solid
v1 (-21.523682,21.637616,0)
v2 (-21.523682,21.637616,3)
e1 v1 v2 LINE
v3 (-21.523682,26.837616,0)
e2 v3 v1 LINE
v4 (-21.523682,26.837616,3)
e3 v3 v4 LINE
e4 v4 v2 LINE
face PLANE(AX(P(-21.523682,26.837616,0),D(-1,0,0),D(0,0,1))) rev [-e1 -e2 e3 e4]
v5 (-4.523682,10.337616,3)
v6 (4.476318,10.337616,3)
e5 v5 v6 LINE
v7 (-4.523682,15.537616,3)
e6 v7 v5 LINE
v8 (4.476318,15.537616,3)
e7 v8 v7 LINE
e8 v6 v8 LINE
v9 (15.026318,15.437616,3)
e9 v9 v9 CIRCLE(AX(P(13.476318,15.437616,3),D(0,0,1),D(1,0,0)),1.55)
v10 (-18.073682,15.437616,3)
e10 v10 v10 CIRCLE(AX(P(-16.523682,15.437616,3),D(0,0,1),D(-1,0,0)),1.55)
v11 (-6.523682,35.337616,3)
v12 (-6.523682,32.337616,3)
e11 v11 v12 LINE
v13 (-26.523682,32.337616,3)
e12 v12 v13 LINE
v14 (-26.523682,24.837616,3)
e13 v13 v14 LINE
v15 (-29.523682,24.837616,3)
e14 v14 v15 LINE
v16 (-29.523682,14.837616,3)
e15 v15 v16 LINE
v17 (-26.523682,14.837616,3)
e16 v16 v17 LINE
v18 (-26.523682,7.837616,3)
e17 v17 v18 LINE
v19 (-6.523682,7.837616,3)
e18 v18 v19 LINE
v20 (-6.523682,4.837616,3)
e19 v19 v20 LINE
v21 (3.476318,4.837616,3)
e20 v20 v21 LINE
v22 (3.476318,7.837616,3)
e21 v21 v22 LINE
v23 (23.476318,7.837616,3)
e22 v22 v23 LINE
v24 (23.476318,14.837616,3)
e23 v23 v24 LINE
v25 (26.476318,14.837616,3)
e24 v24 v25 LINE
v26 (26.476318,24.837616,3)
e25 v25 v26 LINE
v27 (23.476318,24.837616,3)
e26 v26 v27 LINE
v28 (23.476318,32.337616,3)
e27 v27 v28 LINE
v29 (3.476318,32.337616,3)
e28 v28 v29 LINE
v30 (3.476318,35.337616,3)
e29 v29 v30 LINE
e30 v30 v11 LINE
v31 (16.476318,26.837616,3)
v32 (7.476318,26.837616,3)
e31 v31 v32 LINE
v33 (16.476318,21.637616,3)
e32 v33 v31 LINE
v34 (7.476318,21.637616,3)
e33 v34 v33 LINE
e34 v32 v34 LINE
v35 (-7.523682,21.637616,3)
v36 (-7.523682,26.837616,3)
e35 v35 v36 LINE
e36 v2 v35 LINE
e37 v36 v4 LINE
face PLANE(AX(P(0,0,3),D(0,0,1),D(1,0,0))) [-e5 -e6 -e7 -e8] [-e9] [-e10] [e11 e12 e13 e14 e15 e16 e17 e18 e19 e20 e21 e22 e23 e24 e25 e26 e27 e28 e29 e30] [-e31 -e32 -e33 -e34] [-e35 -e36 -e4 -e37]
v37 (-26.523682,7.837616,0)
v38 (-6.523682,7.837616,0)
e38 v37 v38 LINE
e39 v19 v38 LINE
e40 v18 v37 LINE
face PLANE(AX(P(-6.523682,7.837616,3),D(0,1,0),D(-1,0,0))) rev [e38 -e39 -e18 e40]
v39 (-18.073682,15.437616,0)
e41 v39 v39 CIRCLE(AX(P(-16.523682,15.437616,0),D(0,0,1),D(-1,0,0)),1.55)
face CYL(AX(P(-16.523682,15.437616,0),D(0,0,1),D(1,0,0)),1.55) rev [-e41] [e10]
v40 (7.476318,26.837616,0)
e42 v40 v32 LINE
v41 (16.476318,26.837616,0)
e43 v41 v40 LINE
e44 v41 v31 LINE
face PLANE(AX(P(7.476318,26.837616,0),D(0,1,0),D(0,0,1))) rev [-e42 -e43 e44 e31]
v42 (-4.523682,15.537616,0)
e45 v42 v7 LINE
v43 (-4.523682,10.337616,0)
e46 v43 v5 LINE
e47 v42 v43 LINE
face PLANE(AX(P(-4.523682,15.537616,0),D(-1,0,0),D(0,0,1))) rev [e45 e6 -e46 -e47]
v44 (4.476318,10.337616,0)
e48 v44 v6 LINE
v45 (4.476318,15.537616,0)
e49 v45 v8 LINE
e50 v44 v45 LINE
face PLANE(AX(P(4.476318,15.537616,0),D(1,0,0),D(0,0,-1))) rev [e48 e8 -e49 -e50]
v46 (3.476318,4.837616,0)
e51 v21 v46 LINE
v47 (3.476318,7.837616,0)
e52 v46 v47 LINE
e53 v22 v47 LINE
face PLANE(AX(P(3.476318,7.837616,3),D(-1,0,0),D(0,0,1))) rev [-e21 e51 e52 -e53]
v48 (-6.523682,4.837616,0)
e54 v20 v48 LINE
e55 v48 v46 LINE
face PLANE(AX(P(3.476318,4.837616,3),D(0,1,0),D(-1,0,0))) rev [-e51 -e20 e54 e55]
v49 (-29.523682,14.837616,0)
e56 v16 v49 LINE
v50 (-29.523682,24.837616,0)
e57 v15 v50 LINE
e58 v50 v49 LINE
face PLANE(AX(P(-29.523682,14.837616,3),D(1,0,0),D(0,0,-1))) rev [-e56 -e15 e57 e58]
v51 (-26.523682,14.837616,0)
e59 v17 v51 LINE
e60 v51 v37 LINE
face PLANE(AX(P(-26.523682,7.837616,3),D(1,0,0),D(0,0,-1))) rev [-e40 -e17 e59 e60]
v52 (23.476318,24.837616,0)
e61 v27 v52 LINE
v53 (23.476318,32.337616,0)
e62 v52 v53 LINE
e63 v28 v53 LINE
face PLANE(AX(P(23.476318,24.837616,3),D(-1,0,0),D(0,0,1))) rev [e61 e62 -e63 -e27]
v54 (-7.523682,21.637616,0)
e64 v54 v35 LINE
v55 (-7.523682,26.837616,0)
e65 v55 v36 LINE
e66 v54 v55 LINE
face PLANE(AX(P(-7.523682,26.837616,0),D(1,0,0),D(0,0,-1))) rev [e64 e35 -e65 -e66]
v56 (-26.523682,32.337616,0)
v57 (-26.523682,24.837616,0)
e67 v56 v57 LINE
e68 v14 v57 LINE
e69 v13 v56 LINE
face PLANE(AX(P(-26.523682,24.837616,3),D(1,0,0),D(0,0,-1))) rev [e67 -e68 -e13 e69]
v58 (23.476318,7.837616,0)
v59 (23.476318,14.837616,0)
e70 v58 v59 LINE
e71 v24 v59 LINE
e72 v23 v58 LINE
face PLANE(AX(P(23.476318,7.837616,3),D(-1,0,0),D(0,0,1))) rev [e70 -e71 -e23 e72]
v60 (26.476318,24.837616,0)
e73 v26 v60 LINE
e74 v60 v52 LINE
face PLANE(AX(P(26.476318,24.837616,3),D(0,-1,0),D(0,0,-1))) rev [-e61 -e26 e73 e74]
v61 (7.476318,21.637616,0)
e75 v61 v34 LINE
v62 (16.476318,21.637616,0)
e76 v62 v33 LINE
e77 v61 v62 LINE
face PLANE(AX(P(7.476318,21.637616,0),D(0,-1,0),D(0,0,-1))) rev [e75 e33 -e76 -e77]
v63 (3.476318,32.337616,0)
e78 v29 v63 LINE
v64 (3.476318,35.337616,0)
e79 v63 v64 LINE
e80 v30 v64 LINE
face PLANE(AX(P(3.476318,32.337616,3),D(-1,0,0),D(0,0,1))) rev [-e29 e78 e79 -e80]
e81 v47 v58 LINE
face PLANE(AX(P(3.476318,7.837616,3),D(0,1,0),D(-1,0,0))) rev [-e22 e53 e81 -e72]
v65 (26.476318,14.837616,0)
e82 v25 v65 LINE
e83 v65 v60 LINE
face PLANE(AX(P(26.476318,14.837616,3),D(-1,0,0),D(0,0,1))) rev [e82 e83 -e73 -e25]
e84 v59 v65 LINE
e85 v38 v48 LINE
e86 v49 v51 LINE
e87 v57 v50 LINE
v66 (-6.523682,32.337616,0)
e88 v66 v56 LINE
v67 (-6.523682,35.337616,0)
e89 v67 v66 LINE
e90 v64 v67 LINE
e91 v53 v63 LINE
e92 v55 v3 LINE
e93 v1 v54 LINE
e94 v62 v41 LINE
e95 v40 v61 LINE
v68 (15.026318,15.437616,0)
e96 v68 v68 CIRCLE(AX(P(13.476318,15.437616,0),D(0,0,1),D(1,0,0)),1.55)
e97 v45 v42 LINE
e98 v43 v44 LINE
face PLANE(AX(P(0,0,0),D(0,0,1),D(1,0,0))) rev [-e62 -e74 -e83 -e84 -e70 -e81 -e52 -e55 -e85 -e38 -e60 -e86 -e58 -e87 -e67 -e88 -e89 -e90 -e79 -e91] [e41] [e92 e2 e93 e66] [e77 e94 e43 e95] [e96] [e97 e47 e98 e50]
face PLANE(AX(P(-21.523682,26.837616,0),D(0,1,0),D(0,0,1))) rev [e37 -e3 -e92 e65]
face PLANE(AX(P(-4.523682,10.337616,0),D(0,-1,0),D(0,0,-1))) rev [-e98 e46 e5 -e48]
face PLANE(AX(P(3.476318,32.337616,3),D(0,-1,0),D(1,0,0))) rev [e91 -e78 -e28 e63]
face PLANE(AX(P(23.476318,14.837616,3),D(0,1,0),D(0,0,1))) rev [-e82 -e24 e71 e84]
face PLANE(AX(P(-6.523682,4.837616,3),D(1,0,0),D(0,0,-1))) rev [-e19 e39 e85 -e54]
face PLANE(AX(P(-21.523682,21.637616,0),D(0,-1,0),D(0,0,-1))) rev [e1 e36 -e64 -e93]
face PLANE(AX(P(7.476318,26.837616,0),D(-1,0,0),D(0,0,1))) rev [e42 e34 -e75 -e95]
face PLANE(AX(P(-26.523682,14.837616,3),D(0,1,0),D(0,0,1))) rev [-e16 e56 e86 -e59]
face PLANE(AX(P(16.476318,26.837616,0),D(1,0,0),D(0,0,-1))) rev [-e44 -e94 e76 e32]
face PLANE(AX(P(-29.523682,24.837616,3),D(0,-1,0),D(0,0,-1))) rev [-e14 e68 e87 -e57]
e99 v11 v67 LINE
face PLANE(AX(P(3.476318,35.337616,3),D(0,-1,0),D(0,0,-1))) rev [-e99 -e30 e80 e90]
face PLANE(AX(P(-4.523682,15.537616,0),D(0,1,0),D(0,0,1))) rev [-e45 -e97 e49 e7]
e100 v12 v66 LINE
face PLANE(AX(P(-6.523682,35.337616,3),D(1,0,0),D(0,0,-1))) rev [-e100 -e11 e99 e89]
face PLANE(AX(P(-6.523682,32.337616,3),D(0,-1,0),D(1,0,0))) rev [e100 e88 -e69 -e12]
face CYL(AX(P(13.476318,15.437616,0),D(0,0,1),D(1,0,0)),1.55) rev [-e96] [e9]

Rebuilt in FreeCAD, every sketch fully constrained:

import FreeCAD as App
import Part
import Sketcher
from FreeCAD import Vector
Q = App.Units.Quantity

doc = App.newDocument("Part")
params = doc.addObject("Spreadsheet::Sheet", "Params")
for row, (alias, value) in enumerate([
    ("sketch1_width", "20 mm"),
    ("sketch1_width2", "3 mm"),
    ("sketch1_width3", "10 mm"),
    ("sketch1_height", "7 mm"),
    ("sketch1_height2", "7.5 mm"),
    ("pad1_length", "3 mm"),
    ("sketch2_diameter", "3.1 mm"),
    ("sketch2_width", "9 mm"),
    ("sketch2_width2", "14 mm"),
    ("sketch2_height", "5.2 mm"),
    ("pocket1_length", "3 mm"),
], start=1):
    params.set(f"A{row}", alias)
    params.set(f"B{row}", "=" + value)
    params.setAlias(f"B{row}", alias)

body = doc.addObject("PartDesign::Body", "Body")

sketch1 = body.newObject("Sketcher::SketchObject", "Sketch")
sketch1.AttachmentSupport = (doc.getObject("XY_Plane"), [""])
sketch1.MapMode = "FlatFace"
sketch1.addGeometry(Part.LineSegment(Vector(3.476318, 4.837616, 0), Vector(3.476318, 7.837616, 0)), False)
sketch1.addGeometry(Part.LineSegment(Vector(3.476318, 7.837616, 0), Vector(23.476318, 7.837616, 0)), False)
sketch1.addGeometry(Part.LineSegment(Vector(23.476318, 7.837616, 0), Vector(23.476318, 14.837616, 0)), False)
sketch1.addGeometry(Part.LineSegment(Vector(23.476318, 14.837616, 0), Vector(26.476318, 14.837616, 0)), False)
sketch1.addGeometry(Part.LineSegment(Vector(26.476318, 14.837616, 0), Vector(26.476318, 24.837616, 0)), False)
sketch1.addGeometry(Part.LineSegment(Vector(26.476318, 24.837616, 0), Vector(23.476318, 24.837616, 0)), False)
sketch1.addGeometry(Part.LineSegment(Vector(23.476318, 24.837616, 0), Vector(23.476318, 32.337616, 0)), False)
sketch1.addGeometry(Part.LineSegment(Vector(23.476318, 32.337616, 0), Vector(3.476318, 32.337616, 0)), False)
sketch1.addGeometry(Part.LineSegment(Vector(3.476318, 32.337616, 0), Vector(3.476318, 35.337616, 0)), False)
sketch1.addGeometry(Part.LineSegment(Vector(3.476318, 35.337616, 0), Vector(-6.523682, 35.337616, 0)), False)
sketch1.addGeometry(Part.LineSegment(Vector(-6.523682, 35.337616, 0), Vector(-6.523682, 32.337616, 0)), False)
sketch1.addGeometry(Part.LineSegment(Vector(-6.523682, 32.337616, 0), Vector(-26.523682, 32.337616, 0)), False)
sketch1.addGeometry(Part.LineSegment(Vector(-26.523682, 32.337616, 0), Vector(-26.523682, 24.837616, 0)), False)
sketch1.addGeometry(Part.LineSegment(Vector(-26.523682, 24.837616, 0), Vector(-29.523682, 24.837616, 0)), False)
sketch1.addGeometry(Part.LineSegment(Vector(-29.523682, 24.837616, 0), Vector(-29.523682, 14.837616, 0)), False)
sketch1.addGeometry(Part.LineSegment(Vector(-29.523682, 14.837616, 0), Vector(-26.523682, 14.837616, 0)), False)
sketch1.addGeometry(Part.LineSegment(Vector(-26.523682, 14.837616, 0), Vector(-26.523682, 7.837616, 0)), False)
sketch1.addGeometry(Part.LineSegment(Vector(-26.523682, 7.837616, 0), Vector(-6.523682, 7.837616, 0)), False)
sketch1.addGeometry(Part.LineSegment(Vector(-6.523682, 7.837616, 0), Vector(-6.523682, 4.837616, 0)), False)
sketch1.addGeometry(Part.LineSegment(Vector(-6.523682, 4.837616, 0), Vector(3.476318, 4.837616, 0)), False)
sketch1.addConstraint(Sketcher.Constraint("Coincident", 0, 2, 1, 1))
sketch1.addConstraint(Sketcher.Constraint("Coincident", 1, 2, 2, 1))
sketch1.addConstraint(Sketcher.Constraint("Coincident", 2, 2, 3, 1))
sketch1.addConstraint(Sketcher.Constraint("Coincident", 3, 2, 4, 1))
sketch1.addConstraint(Sketcher.Constraint("Coincident", 4, 2, 5, 1))
sketch1.addConstraint(Sketcher.Constraint("Coincident", 5, 2, 6, 1))
sketch1.addConstraint(Sketcher.Constraint("Coincident", 6, 2, 7, 1))
sketch1.addConstraint(Sketcher.Constraint("Coincident", 7, 2, 8, 1))
sketch1.addConstraint(Sketcher.Constraint("Coincident", 8, 2, 9, 1))
sketch1.addConstraint(Sketcher.Constraint("Coincident", 9, 2, 10, 1))
sketch1.addConstraint(Sketcher.Constraint("Coincident", 10, 2, 11, 1))
sketch1.addConstraint(Sketcher.Constraint("Coincident", 11, 2, 12, 1))
sketch1.addConstraint(Sketcher.Constraint("Coincident", 12, 2, 13, 1))
sketch1.addConstraint(Sketcher.Constraint("Coincident", 13, 2, 14, 1))
sketch1.addConstraint(Sketcher.Constraint("Coincident", 14, 2, 15, 1))
sketch1.addConstraint(Sketcher.Constraint("Coincident", 15, 2, 16, 1))
sketch1.addConstraint(Sketcher.Constraint("Coincident", 16, 2, 17, 1))
sketch1.addConstraint(Sketcher.Constraint("Coincident", 17, 2, 18, 1))
sketch1.addConstraint(Sketcher.Constraint("Coincident", 18, 2, 19, 1))
sketch1.addConstraint(Sketcher.Constraint("Coincident", 19, 2, 0, 1))
sketch1.addConstraint(Sketcher.Constraint("Vertical", 0))
sketch1.addConstraint(Sketcher.Constraint("Horizontal", 1))
sketch1.addConstraint(Sketcher.Constraint("Vertical", 2))
sketch1.addConstraint(Sketcher.Constraint("Horizontal", 3))
sketch1.addConstraint(Sketcher.Constraint("Vertical", 4))
sketch1.addConstraint(Sketcher.Constraint("Horizontal", 5))
sketch1.addConstraint(Sketcher.Constraint("Vertical", 6))
sketch1.addConstraint(Sketcher.Constraint("Horizontal", 7))
sketch1.addConstraint(Sketcher.Constraint("Vertical", 8))
sketch1.addConstraint(Sketcher.Constraint("Horizontal", 9))
sketch1.addConstraint(Sketcher.Constraint("Vertical", 10))
sketch1.addConstraint(Sketcher.Constraint("Horizontal", 11))
sketch1.addConstraint(Sketcher.Constraint("Vertical", 12))
sketch1.addConstraint(Sketcher.Constraint("Horizontal", 13))
sketch1.addConstraint(Sketcher.Constraint("Vertical", 14))
sketch1.addConstraint(Sketcher.Constraint("Horizontal", 15))
sketch1.addConstraint(Sketcher.Constraint("Vertical", 16))
sketch1.addConstraint(Sketcher.Constraint("Horizontal", 17))
sketch1.addConstraint(Sketcher.Constraint("Vertical", 18))
sketch1.addConstraint(Sketcher.Constraint("Horizontal", 19))
sketch1.addConstraint(Sketcher.Constraint("Horizontal", 7, 2, 10, 2))
sketch1.addConstraint(Sketcher.Constraint("Horizontal", 5, 2, 12, 2))
sketch1.addConstraint(Sketcher.Constraint("Horizontal", 3, 2, 14, 2))
sketch1.addConstraint(Sketcher.Constraint("Horizontal", 1, 2, 16, 2))
sketch1.addConstraint(Sketcher.Constraint("Vertical", 2, 2, 5, 2))
sketch1.addConstraint(Sketcher.Constraint("Vertical", 0, 2, 7, 2))
sketch1.addConstraint(Sketcher.Constraint("Vertical", 12, 2, 15, 2))
sketch1.addConstraint(Sketcher.Constraint("Vertical", 10, 2, 17, 2))
sketch1.addConstraint(Sketcher.Constraint("Equal", 7, 11))
sketch1.addConstraint(Sketcher.Constraint("Equal", 5, 13))
sketch1.addConstraint(Sketcher.Constraint("Equal", 15, 0))
sketch1.addConstraint(Sketcher.Constraint("Equal", 19, 4))
sketch1.addConstraint(Sketcher.Constraint("Equal", 0, 8))
sketch1.addConstraint(Sketcher.Constraint("DistanceX", 1, 1, 1, 2, Q("20 mm")))
sketch1.addConstraint(Sketcher.Constraint("DistanceX", 3, 1, 3, 2, Q("3 mm")))
sketch1.addConstraint(Sketcher.Constraint("DistanceX", 9, 2, 9, 1, Q("10 mm")))
sketch1.addConstraint(Sketcher.Constraint("DistanceY", 2, 1, 2, 2, Q("7 mm")))
sketch1.addConstraint(Sketcher.Constraint("DistanceY", 6, 1, 6, 2, Q("7.5 mm")))
sketch1.addConstraint(Sketcher.Constraint("DistanceX", -1, 1, 0, 2, Q("3.476318 mm")))
sketch1.addConstraint(Sketcher.Constraint("DistanceY", -1, 1, 0, 2, Q("7.837616 mm")))
sketch1.setExpression("Constraints[53]", "Params.sketch1_width")
sketch1.setExpression("Constraints[54]", "Params.sketch1_width2")
sketch1.setExpression("Constraints[55]", "Params.sketch1_width3")
sketch1.setExpression("Constraints[56]", "Params.sketch1_height")
sketch1.setExpression("Constraints[57]", "Params.sketch1_height2")
pad1 = body.newObject("PartDesign::Pad", "Pad")
pad1.Profile = sketch1
pad1.setExpression("Length", "Params.pad1_length")

sketch2 = body.newObject("Sketcher::SketchObject", "Sketch001")
sketch2.AttachmentSupport = (doc.getObject("XY_Plane"), [""])
sketch2.MapMode = "FlatFace"
sketch2.AttachmentOffset = App.Placement(Vector(0, 0, 3), App.Rotation())
sketch2.addGeometry(Part.Circle(Vector(13.476318, 15.437616, 0), Vector(0, 0, 1), 1.55), False)
sketch2.addGeometry(Part.Circle(Vector(-16.523682, 15.437616, 0), Vector(0, 0, 1), 1.55), False)
sketch2.addGeometry(Part.LineSegment(Vector(-4.523682, 15.537616, 0), Vector(-4.523682, 10.337616, 0)), False)
sketch2.addGeometry(Part.LineSegment(Vector(-4.523682, 10.337616, 0), Vector(4.476318, 10.337616, 0)), False)
sketch2.addGeometry(Part.LineSegment(Vector(4.476318, 10.337616, 0), Vector(4.476318, 15.537616, 0)), False)
sketch2.addGeometry(Part.LineSegment(Vector(4.476318, 15.537616, 0), Vector(-4.523682, 15.537616, 0)), False)
sketch2.addGeometry(Part.LineSegment(Vector(7.476318, 26.837616, 0), Vector(7.476318, 21.637616, 0)), False)
sketch2.addGeometry(Part.LineSegment(Vector(7.476318, 21.637616, 0), Vector(16.476318, 21.637616, 0)), False)
sketch2.addGeometry(Part.LineSegment(Vector(16.476318, 21.637616, 0), Vector(16.476318, 26.837616, 0)), False)
sketch2.addGeometry(Part.LineSegment(Vector(16.476318, 26.837616, 0), Vector(7.476318, 26.837616, 0)), False)
sketch2.addGeometry(Part.LineSegment(Vector(-21.523682, 26.837616, 0), Vector(-21.523682, 21.637616, 0)), False)
sketch2.addGeometry(Part.LineSegment(Vector(-21.523682, 21.637616, 0), Vector(-7.523682, 21.637616, 0)), False)
sketch2.addGeometry(Part.LineSegment(Vector(-7.523682, 21.637616, 0), Vector(-7.523682, 26.837616, 0)), False)
sketch2.addGeometry(Part.LineSegment(Vector(-7.523682, 26.837616, 0), Vector(-21.523682, 26.837616, 0)), False)
sketch2.addConstraint(Sketcher.Constraint("Coincident", 2, 2, 3, 1))
sketch2.addConstraint(Sketcher.Constraint("Coincident", 3, 2, 4, 1))
sketch2.addConstraint(Sketcher.Constraint("Coincident", 4, 2, 5, 1))
sketch2.addConstraint(Sketcher.Constraint("Coincident", 5, 2, 2, 1))
sketch2.addConstraint(Sketcher.Constraint("Coincident", 6, 2, 7, 1))
sketch2.addConstraint(Sketcher.Constraint("Coincident", 7, 2, 8, 1))
sketch2.addConstraint(Sketcher.Constraint("Coincident", 8, 2, 9, 1))
sketch2.addConstraint(Sketcher.Constraint("Coincident", 9, 2, 6, 1))
sketch2.addConstraint(Sketcher.Constraint("Coincident", 10, 2, 11, 1))
sketch2.addConstraint(Sketcher.Constraint("Coincident", 11, 2, 12, 1))
sketch2.addConstraint(Sketcher.Constraint("Coincident", 12, 2, 13, 1))
sketch2.addConstraint(Sketcher.Constraint("Coincident", 13, 2, 10, 1))
sketch2.addConstraint(Sketcher.Constraint("Vertical", 2))
sketch2.addConstraint(Sketcher.Constraint("Horizontal", 3))
sketch2.addConstraint(Sketcher.Constraint("Vertical", 4))
sketch2.addConstraint(Sketcher.Constraint("Horizontal", 5))
sketch2.addConstraint(Sketcher.Constraint("Vertical", 6))
sketch2.addConstraint(Sketcher.Constraint("Horizontal", 7))
sketch2.addConstraint(Sketcher.Constraint("Vertical", 8))
sketch2.addConstraint(Sketcher.Constraint("Horizontal", 9))
sketch2.addConstraint(Sketcher.Constraint("Vertical", 10))
sketch2.addConstraint(Sketcher.Constraint("Horizontal", 11))
sketch2.addConstraint(Sketcher.Constraint("Vertical", 12))
sketch2.addConstraint(Sketcher.Constraint("Horizontal", 13))
sketch2.addConstraint(Sketcher.Constraint("Equal", 0, 1))
sketch2.addConstraint(Sketcher.Constraint("Horizontal", 0, 3, 1, 3))
sketch2.addConstraint(Sketcher.Constraint("Horizontal", 7, 2, 10, 2))
sketch2.addConstraint(Sketcher.Constraint("Horizontal", 9, 2, 12, 2))
sketch2.addConstraint(Sketcher.Constraint("Equal", 5, 7))
sketch2.addConstraint(Sketcher.Constraint("Equal", 4, 6))
sketch2.addConstraint(Sketcher.Constraint("Diameter", 0, Q("3.1 mm")))
sketch2.addConstraint(Sketcher.Constraint("DistanceX", 3, 1, 3, 2, Q("9 mm")))
sketch2.addConstraint(Sketcher.Constraint("DistanceX", 11, 1, 11, 2, Q("14 mm")))
sketch2.addConstraint(Sketcher.Constraint("DistanceY", 2, 2, 2, 1, Q("5.2 mm")))
sketch2.addConstraint(Sketcher.Constraint("DistanceX", 1, 3, 0, 3, Q("30 mm")))
sketch2.addConstraint(Sketcher.Constraint("DistanceX", 1, 3, 2, 2, Q("12 mm")))
sketch2.addConstraint(Sketcher.Constraint("DistanceX", 4, 2, 6, 2, Q("3 mm")))
sketch2.addConstraint(Sketcher.Constraint("DistanceX", 10, 2, 1, 3, Q("5 mm")))
sketch2.addConstraint(Sketcher.Constraint("DistanceY", 2, 2, 1, 3, Q("5.1 mm")))
sketch2.addConstraint(Sketcher.Constraint("DistanceY", 4, 2, 6, 2, Q("6.1 mm")))
sketch2.addConstraint(Sketcher.Constraint("DistanceX", -1, 1, 0, 3, Q("13.476318 mm")))
sketch2.addConstraint(Sketcher.Constraint("DistanceY", -1, 1, 0, 3, Q("15.437616 mm")))
sketch2.setExpression("Constraints[30]", "Params.sketch2_diameter")
sketch2.setExpression("Constraints[31]", "Params.sketch2_width")
sketch2.setExpression("Constraints[32]", "Params.sketch2_width2")
sketch2.setExpression("Constraints[33]", "Params.sketch2_height")
pocket1 = body.newObject("PartDesign::Pocket", "Pocket")
pocket1.Profile = sketch2
pocket1.setExpression("Length", "Params.pocket1_length")

doc.recompute()
